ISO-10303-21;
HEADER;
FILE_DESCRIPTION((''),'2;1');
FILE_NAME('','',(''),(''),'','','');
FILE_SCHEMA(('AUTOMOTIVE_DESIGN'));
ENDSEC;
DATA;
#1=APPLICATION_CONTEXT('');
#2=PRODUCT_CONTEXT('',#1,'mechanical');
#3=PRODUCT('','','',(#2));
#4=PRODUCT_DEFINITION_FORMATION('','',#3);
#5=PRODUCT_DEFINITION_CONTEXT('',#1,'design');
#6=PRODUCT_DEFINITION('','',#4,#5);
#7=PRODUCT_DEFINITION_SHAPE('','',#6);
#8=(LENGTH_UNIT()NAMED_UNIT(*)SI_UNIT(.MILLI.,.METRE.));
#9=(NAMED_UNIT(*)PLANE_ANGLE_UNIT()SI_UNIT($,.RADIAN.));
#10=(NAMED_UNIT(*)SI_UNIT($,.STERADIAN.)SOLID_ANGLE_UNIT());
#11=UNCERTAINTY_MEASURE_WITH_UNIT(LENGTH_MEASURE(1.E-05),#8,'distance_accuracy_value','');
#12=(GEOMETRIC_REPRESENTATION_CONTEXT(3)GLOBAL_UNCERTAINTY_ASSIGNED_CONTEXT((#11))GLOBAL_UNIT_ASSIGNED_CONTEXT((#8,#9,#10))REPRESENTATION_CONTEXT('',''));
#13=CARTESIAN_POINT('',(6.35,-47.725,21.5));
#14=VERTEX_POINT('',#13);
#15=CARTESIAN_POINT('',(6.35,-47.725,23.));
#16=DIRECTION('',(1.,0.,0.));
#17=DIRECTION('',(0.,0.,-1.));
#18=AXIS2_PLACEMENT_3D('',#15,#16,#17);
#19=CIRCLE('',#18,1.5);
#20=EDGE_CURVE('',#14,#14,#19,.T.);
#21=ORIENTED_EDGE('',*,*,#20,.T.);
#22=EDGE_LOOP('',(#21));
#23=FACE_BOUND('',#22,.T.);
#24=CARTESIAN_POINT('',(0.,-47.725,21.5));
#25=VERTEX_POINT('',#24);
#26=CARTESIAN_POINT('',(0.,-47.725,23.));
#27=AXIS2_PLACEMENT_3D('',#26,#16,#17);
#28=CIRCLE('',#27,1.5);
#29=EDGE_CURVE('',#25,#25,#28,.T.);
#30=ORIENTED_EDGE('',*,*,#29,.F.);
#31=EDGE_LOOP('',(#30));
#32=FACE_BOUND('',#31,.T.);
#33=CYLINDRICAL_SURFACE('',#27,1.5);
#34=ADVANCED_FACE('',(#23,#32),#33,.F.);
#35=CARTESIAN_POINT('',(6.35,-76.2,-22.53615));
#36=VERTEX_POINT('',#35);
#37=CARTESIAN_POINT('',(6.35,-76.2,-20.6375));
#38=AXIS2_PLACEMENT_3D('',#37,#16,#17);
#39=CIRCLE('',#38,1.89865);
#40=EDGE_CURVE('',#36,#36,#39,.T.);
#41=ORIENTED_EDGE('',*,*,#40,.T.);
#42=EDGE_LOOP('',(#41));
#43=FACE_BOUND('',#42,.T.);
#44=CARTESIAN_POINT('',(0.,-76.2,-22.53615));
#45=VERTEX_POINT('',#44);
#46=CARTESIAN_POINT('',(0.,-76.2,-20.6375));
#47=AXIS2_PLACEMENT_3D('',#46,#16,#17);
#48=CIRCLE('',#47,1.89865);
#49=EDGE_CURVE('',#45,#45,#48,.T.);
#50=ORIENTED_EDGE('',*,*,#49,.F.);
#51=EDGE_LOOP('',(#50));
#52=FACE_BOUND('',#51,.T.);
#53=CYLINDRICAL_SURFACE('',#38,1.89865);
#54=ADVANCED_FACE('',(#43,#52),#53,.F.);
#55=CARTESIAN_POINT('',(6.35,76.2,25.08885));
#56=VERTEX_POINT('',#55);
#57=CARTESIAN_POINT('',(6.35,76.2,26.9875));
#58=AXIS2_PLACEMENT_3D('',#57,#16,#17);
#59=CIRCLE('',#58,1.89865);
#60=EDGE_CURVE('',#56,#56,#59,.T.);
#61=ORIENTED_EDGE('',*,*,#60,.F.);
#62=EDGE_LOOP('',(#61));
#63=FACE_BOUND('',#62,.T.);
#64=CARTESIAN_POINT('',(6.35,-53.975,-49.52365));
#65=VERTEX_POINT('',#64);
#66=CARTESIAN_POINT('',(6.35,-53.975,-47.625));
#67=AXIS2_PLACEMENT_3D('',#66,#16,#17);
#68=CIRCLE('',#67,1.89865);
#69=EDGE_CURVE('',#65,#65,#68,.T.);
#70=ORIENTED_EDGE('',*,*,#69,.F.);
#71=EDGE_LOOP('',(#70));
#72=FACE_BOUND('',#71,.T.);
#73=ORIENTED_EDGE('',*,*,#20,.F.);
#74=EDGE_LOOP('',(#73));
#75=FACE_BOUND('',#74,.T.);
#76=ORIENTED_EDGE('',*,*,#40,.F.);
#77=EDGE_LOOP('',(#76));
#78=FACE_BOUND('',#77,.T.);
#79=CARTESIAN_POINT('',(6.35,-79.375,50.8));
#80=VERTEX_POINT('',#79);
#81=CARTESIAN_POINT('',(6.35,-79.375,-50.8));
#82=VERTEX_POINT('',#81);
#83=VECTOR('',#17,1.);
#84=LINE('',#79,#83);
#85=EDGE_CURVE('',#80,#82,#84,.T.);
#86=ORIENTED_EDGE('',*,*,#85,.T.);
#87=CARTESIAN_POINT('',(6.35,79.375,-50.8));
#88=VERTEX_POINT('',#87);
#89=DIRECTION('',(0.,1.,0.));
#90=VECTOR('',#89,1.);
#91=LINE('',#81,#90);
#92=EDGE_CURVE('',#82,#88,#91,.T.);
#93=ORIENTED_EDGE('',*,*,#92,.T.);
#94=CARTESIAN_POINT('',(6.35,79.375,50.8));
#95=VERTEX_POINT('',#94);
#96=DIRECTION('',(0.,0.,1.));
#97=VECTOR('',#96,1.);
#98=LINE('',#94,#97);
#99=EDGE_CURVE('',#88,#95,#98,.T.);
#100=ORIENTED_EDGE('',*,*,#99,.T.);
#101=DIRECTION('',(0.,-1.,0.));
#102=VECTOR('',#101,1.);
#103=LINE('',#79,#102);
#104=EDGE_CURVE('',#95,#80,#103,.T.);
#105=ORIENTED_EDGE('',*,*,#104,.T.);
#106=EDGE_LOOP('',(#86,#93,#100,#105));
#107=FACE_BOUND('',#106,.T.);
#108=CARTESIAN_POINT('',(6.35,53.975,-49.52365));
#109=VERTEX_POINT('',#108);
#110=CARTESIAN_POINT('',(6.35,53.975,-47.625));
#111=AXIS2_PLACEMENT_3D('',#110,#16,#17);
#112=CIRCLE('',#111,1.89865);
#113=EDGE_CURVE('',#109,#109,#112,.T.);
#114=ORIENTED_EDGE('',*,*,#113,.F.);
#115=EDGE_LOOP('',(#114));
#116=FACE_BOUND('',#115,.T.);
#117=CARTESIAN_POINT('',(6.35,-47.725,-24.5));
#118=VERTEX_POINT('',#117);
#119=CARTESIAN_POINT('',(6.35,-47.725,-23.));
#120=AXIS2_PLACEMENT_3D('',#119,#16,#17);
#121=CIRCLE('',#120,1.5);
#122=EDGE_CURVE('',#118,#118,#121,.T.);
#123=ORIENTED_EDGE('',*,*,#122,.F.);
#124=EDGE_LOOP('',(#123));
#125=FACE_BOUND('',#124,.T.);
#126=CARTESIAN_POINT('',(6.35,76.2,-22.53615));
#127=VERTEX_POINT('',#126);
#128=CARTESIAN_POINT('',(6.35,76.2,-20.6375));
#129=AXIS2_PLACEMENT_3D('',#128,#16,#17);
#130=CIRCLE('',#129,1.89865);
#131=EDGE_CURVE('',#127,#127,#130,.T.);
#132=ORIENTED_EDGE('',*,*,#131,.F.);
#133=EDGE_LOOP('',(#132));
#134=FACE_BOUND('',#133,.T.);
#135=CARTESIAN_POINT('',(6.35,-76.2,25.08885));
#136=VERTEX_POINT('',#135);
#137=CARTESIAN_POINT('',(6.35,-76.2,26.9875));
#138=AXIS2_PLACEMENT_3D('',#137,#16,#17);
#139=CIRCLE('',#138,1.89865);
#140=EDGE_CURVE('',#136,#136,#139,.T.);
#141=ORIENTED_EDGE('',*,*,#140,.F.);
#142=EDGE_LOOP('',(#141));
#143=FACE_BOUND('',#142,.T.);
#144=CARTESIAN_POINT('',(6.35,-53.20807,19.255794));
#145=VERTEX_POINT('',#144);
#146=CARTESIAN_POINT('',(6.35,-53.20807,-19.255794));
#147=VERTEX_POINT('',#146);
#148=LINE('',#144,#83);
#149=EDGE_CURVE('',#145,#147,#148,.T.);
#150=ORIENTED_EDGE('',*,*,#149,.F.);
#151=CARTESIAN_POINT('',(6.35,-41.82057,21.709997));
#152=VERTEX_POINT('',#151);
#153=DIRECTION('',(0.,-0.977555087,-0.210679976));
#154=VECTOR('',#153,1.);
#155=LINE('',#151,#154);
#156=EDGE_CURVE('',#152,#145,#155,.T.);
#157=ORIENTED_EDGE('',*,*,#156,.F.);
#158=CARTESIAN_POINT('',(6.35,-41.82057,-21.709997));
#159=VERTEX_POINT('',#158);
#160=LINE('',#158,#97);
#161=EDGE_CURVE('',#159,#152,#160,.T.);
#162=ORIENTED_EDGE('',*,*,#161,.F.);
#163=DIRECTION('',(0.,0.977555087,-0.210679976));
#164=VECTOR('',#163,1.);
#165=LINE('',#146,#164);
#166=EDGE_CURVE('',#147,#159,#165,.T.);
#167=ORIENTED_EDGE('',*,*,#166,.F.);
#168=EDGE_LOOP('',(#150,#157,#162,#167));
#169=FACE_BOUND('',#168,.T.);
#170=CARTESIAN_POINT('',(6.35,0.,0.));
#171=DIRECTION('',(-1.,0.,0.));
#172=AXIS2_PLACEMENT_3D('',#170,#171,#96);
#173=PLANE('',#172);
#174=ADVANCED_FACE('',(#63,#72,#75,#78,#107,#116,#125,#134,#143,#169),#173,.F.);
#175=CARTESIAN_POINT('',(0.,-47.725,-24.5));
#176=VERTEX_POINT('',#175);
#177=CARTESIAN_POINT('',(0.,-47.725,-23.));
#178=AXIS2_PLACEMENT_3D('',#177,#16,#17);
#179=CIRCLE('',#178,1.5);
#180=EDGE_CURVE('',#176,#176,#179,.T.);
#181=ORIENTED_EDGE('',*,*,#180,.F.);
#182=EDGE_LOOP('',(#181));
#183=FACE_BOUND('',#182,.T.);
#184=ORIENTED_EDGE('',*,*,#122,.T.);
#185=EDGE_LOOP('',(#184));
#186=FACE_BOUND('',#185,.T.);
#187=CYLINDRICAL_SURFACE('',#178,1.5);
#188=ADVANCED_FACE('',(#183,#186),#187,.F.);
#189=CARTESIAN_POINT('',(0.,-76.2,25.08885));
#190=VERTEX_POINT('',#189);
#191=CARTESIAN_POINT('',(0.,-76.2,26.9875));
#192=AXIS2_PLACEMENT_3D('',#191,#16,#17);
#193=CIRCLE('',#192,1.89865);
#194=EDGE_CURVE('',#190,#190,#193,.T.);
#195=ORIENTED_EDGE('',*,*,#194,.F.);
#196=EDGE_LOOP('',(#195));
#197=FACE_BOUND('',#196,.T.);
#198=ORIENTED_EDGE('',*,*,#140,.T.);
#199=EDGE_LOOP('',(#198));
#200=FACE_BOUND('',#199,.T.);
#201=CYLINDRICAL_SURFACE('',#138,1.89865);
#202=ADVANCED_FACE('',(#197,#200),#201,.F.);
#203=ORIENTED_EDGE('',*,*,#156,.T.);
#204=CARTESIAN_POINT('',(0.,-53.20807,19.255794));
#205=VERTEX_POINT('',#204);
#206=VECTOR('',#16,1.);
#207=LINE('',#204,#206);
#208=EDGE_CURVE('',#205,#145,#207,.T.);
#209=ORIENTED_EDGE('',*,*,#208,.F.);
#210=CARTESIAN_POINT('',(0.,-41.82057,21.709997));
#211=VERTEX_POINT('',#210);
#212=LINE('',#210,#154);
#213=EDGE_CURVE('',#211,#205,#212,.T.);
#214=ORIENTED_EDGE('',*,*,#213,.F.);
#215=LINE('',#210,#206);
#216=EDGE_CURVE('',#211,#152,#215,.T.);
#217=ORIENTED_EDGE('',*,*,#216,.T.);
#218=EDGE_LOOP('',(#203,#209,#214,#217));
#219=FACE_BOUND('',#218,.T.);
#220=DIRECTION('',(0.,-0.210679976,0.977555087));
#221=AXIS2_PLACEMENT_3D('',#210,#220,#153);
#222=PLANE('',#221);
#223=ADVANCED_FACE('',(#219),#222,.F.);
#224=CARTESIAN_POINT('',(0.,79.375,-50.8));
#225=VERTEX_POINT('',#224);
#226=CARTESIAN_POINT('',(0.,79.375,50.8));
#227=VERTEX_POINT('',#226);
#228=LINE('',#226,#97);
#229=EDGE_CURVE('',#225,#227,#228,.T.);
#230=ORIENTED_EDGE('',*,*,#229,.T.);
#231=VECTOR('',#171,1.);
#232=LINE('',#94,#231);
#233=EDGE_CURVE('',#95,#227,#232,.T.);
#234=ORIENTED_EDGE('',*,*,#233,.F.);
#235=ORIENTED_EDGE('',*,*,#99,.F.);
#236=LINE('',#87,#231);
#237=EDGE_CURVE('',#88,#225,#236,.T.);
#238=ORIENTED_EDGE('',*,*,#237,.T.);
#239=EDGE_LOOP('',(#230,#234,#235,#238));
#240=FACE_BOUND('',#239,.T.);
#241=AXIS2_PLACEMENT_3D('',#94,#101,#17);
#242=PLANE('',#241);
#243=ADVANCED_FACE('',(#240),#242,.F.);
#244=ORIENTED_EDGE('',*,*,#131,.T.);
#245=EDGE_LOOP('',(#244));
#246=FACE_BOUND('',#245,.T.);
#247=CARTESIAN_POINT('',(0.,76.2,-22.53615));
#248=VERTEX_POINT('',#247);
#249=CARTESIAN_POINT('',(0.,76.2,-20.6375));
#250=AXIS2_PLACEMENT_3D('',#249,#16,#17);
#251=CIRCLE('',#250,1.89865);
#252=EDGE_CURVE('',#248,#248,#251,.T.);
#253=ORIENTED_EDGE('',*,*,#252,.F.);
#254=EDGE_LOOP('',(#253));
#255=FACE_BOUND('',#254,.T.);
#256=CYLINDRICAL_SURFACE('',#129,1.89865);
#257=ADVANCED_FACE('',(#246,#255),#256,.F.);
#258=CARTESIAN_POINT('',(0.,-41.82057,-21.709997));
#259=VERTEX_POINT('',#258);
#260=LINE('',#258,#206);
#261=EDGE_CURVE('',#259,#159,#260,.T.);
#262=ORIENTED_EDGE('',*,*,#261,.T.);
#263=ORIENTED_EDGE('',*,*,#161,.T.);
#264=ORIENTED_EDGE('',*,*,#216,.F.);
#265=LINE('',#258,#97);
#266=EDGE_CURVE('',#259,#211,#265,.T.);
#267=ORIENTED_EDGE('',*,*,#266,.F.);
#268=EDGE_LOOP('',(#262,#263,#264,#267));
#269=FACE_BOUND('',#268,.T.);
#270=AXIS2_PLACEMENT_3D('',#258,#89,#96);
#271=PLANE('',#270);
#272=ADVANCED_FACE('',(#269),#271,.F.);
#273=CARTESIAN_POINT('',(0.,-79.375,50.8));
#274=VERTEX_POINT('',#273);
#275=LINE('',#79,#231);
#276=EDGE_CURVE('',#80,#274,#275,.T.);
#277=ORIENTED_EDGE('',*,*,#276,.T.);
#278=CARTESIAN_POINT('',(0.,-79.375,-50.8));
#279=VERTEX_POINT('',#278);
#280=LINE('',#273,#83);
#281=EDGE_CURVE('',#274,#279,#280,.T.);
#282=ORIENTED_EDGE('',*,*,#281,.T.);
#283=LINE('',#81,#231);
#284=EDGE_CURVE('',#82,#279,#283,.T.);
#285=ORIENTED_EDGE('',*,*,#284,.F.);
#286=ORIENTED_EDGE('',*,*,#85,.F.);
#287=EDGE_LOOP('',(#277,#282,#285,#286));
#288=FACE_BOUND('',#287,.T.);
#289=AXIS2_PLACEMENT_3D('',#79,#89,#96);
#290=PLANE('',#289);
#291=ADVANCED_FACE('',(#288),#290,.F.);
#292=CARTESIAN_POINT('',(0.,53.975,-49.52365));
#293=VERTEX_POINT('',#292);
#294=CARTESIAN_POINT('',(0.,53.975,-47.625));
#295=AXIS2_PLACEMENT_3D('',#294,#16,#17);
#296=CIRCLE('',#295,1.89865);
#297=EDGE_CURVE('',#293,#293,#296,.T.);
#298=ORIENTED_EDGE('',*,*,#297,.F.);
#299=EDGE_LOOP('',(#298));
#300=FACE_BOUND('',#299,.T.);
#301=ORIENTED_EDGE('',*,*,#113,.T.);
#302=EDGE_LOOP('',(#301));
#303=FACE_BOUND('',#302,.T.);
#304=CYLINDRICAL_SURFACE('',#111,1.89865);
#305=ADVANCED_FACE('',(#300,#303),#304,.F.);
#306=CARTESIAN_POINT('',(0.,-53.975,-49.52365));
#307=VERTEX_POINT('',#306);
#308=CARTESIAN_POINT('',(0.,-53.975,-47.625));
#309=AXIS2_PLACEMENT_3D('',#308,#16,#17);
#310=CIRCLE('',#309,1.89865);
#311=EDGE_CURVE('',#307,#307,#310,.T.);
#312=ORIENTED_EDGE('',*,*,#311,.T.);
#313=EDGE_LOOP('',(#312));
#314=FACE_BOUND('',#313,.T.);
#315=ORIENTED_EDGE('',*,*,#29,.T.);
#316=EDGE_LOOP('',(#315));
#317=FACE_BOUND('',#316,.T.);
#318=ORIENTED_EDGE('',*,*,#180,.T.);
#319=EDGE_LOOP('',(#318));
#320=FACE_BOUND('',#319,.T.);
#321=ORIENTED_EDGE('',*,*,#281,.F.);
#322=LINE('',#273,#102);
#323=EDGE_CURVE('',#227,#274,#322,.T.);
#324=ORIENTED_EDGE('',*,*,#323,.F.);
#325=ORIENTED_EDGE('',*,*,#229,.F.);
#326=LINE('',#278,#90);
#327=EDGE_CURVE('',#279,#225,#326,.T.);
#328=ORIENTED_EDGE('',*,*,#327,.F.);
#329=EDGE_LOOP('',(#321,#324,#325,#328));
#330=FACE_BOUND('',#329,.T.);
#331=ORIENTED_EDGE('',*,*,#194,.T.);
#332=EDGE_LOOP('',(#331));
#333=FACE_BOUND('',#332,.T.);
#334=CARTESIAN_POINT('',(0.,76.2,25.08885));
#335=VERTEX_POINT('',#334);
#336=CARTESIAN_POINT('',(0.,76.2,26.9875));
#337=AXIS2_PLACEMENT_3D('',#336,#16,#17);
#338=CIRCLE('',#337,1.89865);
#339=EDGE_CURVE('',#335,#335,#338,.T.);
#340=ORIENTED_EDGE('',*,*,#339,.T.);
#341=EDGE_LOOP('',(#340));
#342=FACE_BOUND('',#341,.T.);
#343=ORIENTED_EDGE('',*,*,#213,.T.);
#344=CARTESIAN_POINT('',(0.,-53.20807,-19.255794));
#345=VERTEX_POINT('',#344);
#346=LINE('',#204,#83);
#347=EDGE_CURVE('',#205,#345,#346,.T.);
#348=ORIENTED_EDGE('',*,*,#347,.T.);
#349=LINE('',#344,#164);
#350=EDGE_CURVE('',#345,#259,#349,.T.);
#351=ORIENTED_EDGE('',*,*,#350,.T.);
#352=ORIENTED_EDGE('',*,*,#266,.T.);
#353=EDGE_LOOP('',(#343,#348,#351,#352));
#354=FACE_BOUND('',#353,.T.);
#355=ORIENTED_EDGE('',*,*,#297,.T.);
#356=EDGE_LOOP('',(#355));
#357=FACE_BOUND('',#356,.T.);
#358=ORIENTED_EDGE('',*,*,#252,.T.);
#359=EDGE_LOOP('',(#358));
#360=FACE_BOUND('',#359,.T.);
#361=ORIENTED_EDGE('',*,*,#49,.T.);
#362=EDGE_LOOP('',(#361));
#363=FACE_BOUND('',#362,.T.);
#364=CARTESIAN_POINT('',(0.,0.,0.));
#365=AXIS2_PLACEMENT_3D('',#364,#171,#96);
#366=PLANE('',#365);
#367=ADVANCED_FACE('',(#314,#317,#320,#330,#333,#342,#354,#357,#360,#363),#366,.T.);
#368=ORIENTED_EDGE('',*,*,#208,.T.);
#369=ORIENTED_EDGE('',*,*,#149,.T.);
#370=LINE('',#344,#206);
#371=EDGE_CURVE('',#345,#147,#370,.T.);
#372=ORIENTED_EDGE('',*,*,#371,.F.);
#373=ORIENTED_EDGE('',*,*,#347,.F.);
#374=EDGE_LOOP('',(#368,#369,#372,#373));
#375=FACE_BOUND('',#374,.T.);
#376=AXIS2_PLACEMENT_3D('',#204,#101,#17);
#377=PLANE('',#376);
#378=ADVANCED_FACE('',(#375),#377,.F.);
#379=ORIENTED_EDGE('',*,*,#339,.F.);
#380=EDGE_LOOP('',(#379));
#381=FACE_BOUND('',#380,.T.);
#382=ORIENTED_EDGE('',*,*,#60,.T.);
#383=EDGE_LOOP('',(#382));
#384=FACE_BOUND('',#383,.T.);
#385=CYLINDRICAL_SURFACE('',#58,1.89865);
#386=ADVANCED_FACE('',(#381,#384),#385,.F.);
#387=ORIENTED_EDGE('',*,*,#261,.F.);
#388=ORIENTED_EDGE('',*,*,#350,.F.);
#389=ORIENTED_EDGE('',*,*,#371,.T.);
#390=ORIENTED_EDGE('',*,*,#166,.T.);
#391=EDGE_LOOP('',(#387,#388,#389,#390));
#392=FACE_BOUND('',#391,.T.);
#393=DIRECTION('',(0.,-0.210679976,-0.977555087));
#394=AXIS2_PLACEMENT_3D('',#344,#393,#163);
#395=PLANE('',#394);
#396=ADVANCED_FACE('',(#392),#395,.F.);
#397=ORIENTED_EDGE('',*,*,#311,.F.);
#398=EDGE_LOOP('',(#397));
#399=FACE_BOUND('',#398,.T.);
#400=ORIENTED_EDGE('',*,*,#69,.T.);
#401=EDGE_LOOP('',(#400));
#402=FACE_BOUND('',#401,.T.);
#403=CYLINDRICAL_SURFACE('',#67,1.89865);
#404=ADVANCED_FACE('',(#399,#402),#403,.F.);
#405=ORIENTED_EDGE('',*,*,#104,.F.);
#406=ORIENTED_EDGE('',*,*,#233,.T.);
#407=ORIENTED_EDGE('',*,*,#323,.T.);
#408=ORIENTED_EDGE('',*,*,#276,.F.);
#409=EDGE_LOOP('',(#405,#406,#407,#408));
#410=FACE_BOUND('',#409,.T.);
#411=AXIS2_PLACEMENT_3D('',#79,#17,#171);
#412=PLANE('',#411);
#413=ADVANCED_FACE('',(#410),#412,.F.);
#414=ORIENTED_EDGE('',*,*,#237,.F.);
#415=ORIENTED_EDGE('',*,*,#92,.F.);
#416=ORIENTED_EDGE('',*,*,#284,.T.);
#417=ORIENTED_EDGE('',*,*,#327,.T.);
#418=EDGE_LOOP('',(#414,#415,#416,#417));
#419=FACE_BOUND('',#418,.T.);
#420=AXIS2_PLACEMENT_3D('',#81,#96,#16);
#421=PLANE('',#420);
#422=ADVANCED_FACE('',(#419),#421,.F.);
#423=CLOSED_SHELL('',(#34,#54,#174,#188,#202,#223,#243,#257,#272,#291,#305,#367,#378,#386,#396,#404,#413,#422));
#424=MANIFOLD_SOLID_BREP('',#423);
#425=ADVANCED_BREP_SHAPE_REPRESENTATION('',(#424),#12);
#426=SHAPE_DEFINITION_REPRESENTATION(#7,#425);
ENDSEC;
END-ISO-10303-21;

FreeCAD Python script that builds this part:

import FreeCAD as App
import Part
import Sketcher
Q = App.Units.Quantity


def add_polygon(sketch, points):
    """Adds a closed chain of lines whose ends are joined by coincident constraints."""
    first, n = sketch.GeometryCount, len(points)
    for a, b in zip(points, points[1:] + points[:1]):
        sketch.addGeometry(Part.LineSegment(App.Vector(*a, 0), App.Vector(*b, 0)), False)
    for i in range(n):
        sketch.addConstraint(Sketcher.Constraint("Coincident", first + i, 2, first + (i + 1) % n, 1))

doc = App.newDocument("Part")
params = doc.addObject("Spreadsheet::Sheet", "Params")
for row, (alias, value) in enumerate([
    ("sketch1_height", "4 in"),
    ("sketch1_width", "6.25 in"),
    ("pad1_length", "0.25 in"),
    ("hole_diameter", "0.1495 in"),
], start=1):
    params.set(f"A{row}", alias)
    params.set(f"B{row}", "=" + value)
    params.setAlias(f"B{row}", alias)

body = doc.addObject("PartDesign::Body", "Body")

# Sketch on YZ plane
sketch1 = body.newObject("Sketcher::SketchObject", "Sketch")
sketch1.AttachmentSupport = (doc.getObject("YZ_Plane"), [""])
sketch1.MapMode = "FlatFace"
add_polygon(sketch1, [(79, 51), (-79, 51), (-79, -51), (79, -51)])  # lines 0-3
sketch1.addConstraint([
    Sketcher.Constraint("Horizontal", 0),
    Sketcher.Constraint("Vertical", 1),
    Sketcher.Constraint("Horizontal", 2),
    Sketcher.Constraint("Vertical", 3),
    Sketcher.Constraint("Symmetric", 0, 2, 2, 2, -1, 1),
    Sketcher.Constraint("DistanceY", 1, 2, 1, 1, Q("4 in")),
    Sketcher.Constraint("DistanceX", 0, 2, 0, 1, Q("6.25 in")),
])
sketch1.setExpression("Constraints[9]", "Params.sketch1_height")
sketch1.setExpression("Constraints[10]", "Params.sketch1_width")
pad1 = body.newObject("PartDesign::Pad", "Pad")
pad1.Profile = sketch1
pad1.setExpression("Length", "Params.pad1_length")

# Sketch on YZ plane
sketch2 = body.newObject("Sketcher::SketchObject", "Sketch001")
sketch2.AttachmentSupport = (doc.getObject("YZ_Plane"), [""])
sketch2.MapMode = "FlatFace"
sketch2.AttachmentOffset = App.Placement(App.Vector(0, 0, 0.25 * 25.4), App.Rotation())
sketch2.addGeometry([
    Part.Circle(App.Vector(-47.7, -23, 0), App.Vector(0, 0, 1), 1.5),
    Part.Circle(App.Vector(-47.7, 23, 0), App.Vector(0, 0, 1), 1.5),
], False)
sketch2.addConstraint([
    Sketcher.Constraint("Equal", 0, 1),
    Sketcher.Constraint("Symmetric", 0, 3, 1, 3, -1),
    Sketcher.Constraint("Diameter", 0, Q("3 mm")),
    Sketcher.Constraint("DistanceX", 0, 3, -1, 1, Q("47.725 mm")),
    Sketcher.Constraint("DistanceY", 0, 3, -1, 1, Q("23 mm")),
])
pocket1 = body.newObject("PartDesign::Pocket", "Pocket")
pocket1.Profile = sketch2
pocket1.Type = "ThroughAll"

# Sketch on YZ plane
sketch3 = body.newObject("Sketcher::SketchObject", "Sketch002")
sketch3.AttachmentSupport = (doc.getObject("YZ_Plane"), [""])
sketch3.MapMode = "FlatFace"
sketch3.AttachmentOffset = App.Placement(App.Vector(0, 0, 0.25 * 25.4), App.Rotation())
add_polygon(sketch3, [(-42, 22), (-53, 19), (-53, -19), (-42, -22)])  # lines 0-3
sketch3.addConstraint([
    Sketcher.Constraint("Vertical", 1),
    Sketcher.Constraint("Vertical", 3),
    Sketcher.Constraint("Equal", 0, 2),
    Sketcher.Constraint("DistanceX", 1, 2, 2, 2, Q("11.3875 mm")),
    Sketcher.Constraint("Distance", 0, Q("11.64896 mm")),
    Sketcher.Constraint("DistanceY", 1, 2, 1, 1, Q("38.511588 mm")),
    Sketcher.Constraint("DistanceX", 0, 2, -1, 1, Q("53.20807 mm")),
    Sketcher.Constraint("DistanceY", -1, 1, 0, 2, Q("19.255794 mm")),
])
pocket2 = body.newObject("PartDesign::Pocket", "Pocket001")
pocket2.Profile = sketch3
pocket2.Type = "ThroughAll"

# Sketch on YZ plane
sketch4 = body.newObject("Sketcher::SketchObject", "Sketch003")
sketch4.AttachmentSupport = (doc.getObject("YZ_Plane"), [""])
sketch4.MapMode = "FlatFace"
sketch4.AttachmentOffset = App.Placement(App.Vector(0, 0, 0.25 * 25.4), App.Rotation())
sketch4.addGeometry([
    Part.Circle(App.Vector(-54, -47.6, 0), App.Vector(0, 0, 1), 1.9),  # 0
    Part.Circle(App.Vector(76.2, 27, 0), App.Vector(0, 0, 1), 1.9),  # 1
    Part.Circle(App.Vector(76.2, -20.6, 0), App.Vector(0, 0, 1), 1.9),  # 2
    Part.Circle(App.Vector(-76.2, 27, 0), App.Vector(0, 0, 1), 1.9),  # 3
    Part.Circle(App.Vector(-76.2, -20.6, 0), App.Vector(0, 0, 1), 1.9),  # 4
    Part.Circle(App.Vector(54, -47.6, 0), App.Vector(0, 0, 1), 1.9),  # 5
], False)
sketch4.addConstraint([
    Sketcher.Constraint("Equal", 0, 1),
    Sketcher.Constraint("Equal", 1, 2),
    Sketcher.Constraint("Equal", 2, 3),
    Sketcher.Constraint("Equal", 3, 4),
    Sketcher.Constraint("Equal", 4, 5),
    Sketcher.Constraint("Symmetric", 1, 3, 3, 3, -2),
    Sketcher.Constraint("Symmetric", 2, 3, 4, 3, -2),
    Sketcher.Constraint("Symmetric", 0, 3, 5, 3, -2),
    Sketcher.Constraint("Vertical", 1, 3, 2, 3),
    Sketcher.Constraint("DistanceX", -1, 1, 1, 3, Q("3 in")),
    Sketcher.Constraint("Diameter", 0, Q("0.1495 in")),
    Sketcher.Constraint("DistanceX", 0, 3, 5, 3, Q("4.25 in")),
    Sketcher.Constraint("DistanceY", 0, 3, -1, 1, Q("1.875 in")),
    Sketcher.Constraint("DistanceY", -1, 1, 1, 3, Q("1.0625 in")),
    Sketcher.Constraint("DistanceY", 2, 3, -1, 1, Q("0.8125 in")),
])
doc.recompute()
hole = body.newObject("PartDesign::Hole", "Hole")
hole.Profile = sketch4
hole.ThreadType = "None"
hole.setExpression("Diameter", "Params.hole_diameter")
hole.DepthType = "ThroughAll"

doc.recompute()
